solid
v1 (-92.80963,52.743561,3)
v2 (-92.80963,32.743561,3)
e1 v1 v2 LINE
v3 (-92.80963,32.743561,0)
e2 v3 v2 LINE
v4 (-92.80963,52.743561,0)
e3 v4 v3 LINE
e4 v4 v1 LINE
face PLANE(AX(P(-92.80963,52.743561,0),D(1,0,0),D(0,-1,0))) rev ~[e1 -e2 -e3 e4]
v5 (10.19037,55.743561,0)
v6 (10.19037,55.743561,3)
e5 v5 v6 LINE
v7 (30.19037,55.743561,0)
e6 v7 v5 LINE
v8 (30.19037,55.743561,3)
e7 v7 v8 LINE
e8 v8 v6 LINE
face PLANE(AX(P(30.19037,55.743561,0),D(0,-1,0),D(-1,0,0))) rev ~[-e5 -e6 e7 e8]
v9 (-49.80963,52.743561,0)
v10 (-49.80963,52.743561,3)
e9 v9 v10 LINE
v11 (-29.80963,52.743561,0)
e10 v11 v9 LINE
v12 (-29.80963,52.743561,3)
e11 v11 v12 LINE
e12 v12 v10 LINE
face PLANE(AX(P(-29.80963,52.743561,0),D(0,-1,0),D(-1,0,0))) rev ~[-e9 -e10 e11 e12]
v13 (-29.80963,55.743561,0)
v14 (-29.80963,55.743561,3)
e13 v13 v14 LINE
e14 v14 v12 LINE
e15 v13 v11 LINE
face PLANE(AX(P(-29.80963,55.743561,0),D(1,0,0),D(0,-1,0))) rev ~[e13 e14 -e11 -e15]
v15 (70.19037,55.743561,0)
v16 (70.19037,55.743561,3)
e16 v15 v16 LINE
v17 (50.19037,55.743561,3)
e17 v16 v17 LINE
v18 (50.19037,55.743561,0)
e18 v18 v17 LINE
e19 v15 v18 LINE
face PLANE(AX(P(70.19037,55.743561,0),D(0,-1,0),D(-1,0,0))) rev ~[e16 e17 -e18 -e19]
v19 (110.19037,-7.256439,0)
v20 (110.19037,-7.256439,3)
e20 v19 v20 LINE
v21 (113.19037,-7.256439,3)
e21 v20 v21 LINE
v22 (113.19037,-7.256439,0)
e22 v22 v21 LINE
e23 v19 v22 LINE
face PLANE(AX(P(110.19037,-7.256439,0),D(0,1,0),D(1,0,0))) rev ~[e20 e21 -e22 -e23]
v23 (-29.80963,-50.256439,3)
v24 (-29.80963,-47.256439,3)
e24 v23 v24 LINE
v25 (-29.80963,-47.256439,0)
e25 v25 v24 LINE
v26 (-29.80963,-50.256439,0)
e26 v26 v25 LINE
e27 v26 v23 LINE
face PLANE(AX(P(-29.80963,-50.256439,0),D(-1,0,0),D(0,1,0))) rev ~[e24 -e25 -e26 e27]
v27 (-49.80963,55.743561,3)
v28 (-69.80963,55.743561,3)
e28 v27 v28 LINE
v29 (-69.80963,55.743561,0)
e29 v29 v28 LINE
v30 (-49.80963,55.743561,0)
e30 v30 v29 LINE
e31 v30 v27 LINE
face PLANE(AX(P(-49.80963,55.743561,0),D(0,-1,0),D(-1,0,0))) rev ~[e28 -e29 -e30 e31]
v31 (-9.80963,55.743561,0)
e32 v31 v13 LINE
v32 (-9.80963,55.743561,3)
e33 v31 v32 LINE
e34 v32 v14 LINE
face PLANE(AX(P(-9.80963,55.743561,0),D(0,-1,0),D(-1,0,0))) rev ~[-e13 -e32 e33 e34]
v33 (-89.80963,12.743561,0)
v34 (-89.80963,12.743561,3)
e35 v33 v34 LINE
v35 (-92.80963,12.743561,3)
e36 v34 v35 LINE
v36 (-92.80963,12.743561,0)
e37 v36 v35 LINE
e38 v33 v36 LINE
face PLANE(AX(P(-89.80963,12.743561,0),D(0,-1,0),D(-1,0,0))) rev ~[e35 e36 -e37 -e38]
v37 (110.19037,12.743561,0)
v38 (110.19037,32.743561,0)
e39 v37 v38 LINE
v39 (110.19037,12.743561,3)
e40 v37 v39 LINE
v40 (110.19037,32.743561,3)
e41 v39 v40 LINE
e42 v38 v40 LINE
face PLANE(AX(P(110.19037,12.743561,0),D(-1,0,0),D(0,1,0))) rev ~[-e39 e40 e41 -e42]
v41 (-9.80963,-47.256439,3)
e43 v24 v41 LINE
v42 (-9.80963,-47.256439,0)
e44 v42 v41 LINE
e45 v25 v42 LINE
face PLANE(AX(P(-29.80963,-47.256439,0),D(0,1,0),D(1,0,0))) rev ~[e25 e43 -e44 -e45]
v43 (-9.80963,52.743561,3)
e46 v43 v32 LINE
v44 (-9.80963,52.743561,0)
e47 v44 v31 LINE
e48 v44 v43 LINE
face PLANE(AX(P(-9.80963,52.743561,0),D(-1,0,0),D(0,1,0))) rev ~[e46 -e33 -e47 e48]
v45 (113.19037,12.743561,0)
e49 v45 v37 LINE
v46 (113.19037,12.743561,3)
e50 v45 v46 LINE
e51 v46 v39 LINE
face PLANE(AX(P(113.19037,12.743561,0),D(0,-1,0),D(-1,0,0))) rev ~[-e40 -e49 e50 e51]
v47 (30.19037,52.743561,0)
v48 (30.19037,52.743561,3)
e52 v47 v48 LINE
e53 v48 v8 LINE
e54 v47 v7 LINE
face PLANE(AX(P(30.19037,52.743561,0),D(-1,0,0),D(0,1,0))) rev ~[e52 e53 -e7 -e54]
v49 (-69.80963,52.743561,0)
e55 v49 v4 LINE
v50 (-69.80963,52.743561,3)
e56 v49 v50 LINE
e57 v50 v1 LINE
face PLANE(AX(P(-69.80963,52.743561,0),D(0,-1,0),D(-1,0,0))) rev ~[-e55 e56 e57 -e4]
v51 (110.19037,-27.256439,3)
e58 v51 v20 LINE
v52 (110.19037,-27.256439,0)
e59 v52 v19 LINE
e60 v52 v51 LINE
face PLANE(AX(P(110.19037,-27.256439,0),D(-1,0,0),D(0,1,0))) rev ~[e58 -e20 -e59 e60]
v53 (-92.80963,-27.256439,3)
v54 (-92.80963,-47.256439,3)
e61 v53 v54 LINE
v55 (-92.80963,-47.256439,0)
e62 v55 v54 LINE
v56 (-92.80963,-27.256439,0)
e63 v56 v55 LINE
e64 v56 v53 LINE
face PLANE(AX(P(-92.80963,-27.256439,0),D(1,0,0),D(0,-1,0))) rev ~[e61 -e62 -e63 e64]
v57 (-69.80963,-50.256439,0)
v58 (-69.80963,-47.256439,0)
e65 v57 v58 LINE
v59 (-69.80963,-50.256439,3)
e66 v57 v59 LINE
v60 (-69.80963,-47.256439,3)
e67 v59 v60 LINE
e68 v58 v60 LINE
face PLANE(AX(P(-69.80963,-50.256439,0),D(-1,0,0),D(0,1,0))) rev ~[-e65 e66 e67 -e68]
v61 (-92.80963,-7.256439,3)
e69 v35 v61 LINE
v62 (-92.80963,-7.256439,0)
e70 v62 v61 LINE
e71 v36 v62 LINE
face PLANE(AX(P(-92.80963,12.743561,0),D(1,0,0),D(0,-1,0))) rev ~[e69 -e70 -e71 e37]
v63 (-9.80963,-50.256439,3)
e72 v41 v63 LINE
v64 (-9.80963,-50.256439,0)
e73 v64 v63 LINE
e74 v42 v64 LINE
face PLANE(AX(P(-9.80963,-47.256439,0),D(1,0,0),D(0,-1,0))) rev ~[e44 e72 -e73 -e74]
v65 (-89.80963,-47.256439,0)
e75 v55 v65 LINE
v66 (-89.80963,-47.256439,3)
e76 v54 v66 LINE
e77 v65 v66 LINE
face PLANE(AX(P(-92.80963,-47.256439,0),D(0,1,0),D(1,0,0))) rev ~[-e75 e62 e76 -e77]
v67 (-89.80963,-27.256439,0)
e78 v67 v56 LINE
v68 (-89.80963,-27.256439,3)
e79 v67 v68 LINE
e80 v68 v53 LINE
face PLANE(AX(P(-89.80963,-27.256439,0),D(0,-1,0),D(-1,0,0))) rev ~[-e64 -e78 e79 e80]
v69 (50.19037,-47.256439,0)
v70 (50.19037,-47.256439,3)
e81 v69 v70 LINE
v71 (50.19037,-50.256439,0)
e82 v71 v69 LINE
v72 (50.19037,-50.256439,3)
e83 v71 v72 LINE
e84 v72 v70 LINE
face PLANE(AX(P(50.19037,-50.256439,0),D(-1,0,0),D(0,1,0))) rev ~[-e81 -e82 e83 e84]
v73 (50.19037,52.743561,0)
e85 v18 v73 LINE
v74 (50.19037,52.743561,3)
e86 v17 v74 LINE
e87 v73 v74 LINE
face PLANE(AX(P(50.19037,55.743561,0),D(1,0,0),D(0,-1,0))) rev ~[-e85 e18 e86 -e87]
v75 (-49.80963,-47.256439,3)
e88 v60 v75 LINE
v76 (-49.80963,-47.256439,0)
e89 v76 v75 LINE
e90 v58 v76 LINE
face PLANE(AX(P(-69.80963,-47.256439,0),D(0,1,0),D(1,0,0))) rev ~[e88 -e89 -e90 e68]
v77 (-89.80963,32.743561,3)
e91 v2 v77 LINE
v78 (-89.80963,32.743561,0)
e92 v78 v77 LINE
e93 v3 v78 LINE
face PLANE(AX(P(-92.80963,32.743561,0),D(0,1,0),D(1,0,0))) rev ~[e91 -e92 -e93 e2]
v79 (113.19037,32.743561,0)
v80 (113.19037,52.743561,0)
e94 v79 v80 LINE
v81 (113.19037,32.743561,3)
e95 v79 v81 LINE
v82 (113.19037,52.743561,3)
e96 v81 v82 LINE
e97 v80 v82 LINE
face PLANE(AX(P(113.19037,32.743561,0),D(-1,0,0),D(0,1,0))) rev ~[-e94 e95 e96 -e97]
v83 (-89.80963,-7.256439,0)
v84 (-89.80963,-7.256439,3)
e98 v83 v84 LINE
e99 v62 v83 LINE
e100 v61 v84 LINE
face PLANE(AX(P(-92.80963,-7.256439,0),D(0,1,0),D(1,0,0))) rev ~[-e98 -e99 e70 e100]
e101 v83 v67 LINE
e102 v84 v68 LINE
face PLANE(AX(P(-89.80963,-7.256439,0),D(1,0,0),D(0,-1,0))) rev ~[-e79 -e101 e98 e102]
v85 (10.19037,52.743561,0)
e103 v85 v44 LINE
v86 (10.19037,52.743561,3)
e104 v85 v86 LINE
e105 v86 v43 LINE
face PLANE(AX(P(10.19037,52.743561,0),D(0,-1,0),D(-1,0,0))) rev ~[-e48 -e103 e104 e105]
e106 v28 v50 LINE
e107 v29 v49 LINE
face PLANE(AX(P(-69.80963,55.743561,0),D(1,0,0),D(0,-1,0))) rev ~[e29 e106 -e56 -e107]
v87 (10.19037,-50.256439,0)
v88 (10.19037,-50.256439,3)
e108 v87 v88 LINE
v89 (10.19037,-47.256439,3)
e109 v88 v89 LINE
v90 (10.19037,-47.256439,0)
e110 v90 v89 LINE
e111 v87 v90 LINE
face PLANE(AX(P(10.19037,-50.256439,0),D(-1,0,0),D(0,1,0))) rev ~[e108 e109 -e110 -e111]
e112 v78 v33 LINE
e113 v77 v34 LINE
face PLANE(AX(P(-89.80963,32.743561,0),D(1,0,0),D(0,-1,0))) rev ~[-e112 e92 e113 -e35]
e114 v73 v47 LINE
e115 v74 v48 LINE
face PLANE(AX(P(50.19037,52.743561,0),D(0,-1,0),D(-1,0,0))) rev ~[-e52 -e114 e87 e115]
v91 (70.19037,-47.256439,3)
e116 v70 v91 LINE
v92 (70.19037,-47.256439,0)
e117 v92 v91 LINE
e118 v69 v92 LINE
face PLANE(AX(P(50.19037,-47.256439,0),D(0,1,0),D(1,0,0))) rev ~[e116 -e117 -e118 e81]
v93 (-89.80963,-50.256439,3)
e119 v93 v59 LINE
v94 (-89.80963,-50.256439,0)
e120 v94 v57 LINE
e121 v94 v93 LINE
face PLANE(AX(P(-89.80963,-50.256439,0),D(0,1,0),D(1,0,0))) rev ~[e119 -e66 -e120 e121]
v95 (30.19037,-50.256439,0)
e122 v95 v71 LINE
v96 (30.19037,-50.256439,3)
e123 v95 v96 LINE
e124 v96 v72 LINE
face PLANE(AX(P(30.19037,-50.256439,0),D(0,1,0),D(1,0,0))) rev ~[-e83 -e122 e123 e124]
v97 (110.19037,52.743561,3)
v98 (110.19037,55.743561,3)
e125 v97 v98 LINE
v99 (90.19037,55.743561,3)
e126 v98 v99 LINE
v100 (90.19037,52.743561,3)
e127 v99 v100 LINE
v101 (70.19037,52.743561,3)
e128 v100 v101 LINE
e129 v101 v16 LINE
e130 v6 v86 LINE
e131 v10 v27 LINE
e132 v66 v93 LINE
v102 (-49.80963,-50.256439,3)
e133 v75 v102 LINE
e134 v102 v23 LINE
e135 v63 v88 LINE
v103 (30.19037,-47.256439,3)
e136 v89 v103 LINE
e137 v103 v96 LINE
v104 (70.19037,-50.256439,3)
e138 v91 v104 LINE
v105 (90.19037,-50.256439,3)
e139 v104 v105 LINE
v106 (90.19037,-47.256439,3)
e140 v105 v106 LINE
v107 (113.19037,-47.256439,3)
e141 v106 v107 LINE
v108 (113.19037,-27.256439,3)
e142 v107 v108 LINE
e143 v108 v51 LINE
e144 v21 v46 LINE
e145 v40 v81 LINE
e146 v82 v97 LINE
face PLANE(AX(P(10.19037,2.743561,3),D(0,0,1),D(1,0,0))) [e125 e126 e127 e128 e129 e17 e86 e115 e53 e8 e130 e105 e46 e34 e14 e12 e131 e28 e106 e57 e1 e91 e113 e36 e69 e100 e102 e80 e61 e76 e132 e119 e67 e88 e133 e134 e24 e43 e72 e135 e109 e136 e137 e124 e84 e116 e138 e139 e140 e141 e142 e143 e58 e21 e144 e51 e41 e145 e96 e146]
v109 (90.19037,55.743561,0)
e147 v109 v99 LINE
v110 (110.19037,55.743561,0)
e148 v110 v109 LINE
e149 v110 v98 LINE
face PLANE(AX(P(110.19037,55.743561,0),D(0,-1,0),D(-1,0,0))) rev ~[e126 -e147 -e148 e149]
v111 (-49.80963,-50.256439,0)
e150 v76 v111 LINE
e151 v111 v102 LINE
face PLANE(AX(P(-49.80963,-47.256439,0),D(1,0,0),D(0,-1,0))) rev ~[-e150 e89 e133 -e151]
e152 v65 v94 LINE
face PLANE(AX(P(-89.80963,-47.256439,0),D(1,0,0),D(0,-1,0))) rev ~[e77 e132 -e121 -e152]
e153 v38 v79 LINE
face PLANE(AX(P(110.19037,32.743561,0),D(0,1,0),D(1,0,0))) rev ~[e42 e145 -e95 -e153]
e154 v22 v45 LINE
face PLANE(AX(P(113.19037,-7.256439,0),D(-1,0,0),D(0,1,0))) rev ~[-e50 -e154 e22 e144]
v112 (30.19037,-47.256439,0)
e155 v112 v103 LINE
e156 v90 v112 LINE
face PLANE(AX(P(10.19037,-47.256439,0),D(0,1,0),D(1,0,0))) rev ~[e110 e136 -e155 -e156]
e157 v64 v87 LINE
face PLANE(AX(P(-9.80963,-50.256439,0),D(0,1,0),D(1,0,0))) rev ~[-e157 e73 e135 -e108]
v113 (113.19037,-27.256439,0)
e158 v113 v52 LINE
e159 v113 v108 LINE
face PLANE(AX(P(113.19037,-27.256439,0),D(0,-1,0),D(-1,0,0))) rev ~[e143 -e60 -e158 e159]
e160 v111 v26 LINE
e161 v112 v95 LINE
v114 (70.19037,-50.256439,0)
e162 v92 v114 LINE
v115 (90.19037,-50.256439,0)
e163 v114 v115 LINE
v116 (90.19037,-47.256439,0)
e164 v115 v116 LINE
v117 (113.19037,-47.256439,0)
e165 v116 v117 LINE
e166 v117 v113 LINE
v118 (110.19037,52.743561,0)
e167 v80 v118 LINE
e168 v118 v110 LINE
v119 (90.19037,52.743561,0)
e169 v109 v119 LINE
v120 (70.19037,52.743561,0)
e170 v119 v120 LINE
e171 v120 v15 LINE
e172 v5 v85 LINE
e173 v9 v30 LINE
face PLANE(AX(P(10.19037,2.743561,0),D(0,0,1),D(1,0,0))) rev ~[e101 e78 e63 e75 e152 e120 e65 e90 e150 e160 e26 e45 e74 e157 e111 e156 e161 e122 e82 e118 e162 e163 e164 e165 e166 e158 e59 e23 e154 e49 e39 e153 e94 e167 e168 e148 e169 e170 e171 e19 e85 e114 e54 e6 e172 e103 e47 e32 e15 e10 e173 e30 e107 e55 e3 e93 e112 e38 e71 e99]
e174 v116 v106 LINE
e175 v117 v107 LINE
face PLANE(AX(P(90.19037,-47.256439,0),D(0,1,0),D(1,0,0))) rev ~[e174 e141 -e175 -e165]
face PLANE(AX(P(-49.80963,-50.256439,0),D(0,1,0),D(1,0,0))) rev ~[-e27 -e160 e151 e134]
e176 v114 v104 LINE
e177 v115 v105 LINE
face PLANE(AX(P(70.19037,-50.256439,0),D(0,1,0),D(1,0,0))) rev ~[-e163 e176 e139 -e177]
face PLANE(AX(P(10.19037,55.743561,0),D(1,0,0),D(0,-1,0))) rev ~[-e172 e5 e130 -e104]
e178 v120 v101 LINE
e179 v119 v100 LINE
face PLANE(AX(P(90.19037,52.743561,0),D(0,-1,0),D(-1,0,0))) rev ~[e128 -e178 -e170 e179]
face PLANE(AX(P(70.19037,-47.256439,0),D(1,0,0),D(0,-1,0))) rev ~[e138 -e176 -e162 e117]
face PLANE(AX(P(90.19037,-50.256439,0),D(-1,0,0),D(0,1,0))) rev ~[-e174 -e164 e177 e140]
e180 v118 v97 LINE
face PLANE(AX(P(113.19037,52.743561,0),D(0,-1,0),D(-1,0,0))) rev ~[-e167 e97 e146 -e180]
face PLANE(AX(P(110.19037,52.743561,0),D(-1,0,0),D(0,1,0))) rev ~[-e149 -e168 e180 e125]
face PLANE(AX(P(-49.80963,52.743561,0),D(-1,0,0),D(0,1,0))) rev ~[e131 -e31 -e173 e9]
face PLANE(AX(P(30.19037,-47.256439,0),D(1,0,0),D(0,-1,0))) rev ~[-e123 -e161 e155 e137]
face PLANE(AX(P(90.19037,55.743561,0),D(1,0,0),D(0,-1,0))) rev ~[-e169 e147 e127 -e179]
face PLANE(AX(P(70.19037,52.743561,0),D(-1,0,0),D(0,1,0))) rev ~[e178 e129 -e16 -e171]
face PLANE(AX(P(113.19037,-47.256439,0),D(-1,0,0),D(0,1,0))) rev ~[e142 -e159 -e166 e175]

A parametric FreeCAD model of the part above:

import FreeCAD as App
import Part
import Sketcher
from FreeCAD import Vector
Q = App.Units.Quantity


def add_polygon(sketch, points):
    """Adds a closed chain of lines whose ends are joined by coincident constraints."""
    first, n = sketch.GeometryCount, len(points)
    for a, b in zip(points, points[1:] + points[:1]):
        sketch.addGeometry(Part.LineSegment(App.Vector(*a, 0), App.Vector(*b, 0)), False)
    for i in range(n):
        sketch.addConstraint(Sketcher.Constraint("Coincident", first + i, 2, first + (i + 1) % n, 1))

doc = App.newDocument("Part")
body = doc.addObject("PartDesign::Body", "Body")

sketch1 = body.newObject("Sketcher::SketchObject", "Sketch")
sketch1.AttachmentSupport = (doc.getObject("XY_Plane"), [""])
sketch1.MapMode = "FlatFace"
add_polygon(sketch1, [(70.19037, 52.743561), (70.19037, 55.743561), (50.19037, 55.743561), (50.19037, 52.743561), (30.19037, 52.743561), (30.19037, 55.743561), (10.19037, 55.743561), (10.19037, 52.743561), (-9.80963, 52.743561), (-9.80963, 55.743561), (-29.80963, 55.743561), (-29.80963, 52.743561), (-49.80963, 52.743561), (-49.80963, 55.743561), (-69.80963, 55.743561), (-69.80963, 52.743561), (-92.80963, 52.743561), (-92.80963, 32.743561), (-89.80963, 32.743561), (-89.80963, 12.743561), (-92.80963, 12.743561), (-92.80963, -7.256439), (-89.80963, -7.256439), (-89.80963, -27.256439), (-92.80963, -27.256439), (-92.80963, -47.256439), (-89.80963, -47.256439), (-89.80963, -50.256439), (-69.80963, -50.256439), (-69.80963, -47.256439), (-49.80963, -47.256439), (-49.80963, -50.256439), (-29.80963, -50.256439), (-29.80963, -47.256439), (-9.80963, -47.256439), (-9.80963, -50.256439), (10.19037, -50.256439), (10.19037, -47.256439), (30.19037, -47.256439), (30.19037, -50.256439), (50.19037, -50.256439), (50.19037, -47.256439), (70.19037, -47.256439), (70.19037, -50.256439), (90.19037, -50.256439), (90.19037, -47.256439), (113.19037, -47.256439), (113.19037, -27.256439), (110.19037, -27.256439), (110.19037, -7.256439), (113.19037, -7.256439), (113.19037, 12.743561), (110.19037, 12.743561), (110.19037, 32.743561), (113.19037, 32.743561), (113.19037, 52.743561), (110.19037, 52.743561), (110.19037, 55.743561), (90.19037, 55.743561), (90.19037, 52.743561)])
sketch1.addConstraint(Sketcher.Constraint("Vertical", 0))
sketch1.addConstraint(Sketcher.Constraint("Horizontal", 1))
sketch1.addConstraint(Sketcher.Constraint("Vertical", 2))
sketch1.addConstraint(Sketcher.Constraint("Horizontal", 3))
sketch1.addConstraint(Sketcher.Constraint("Vertical", 4))
sketch1.addConstraint(Sketcher.Constraint("Horizontal", 5))
sketch1.addConstraint(Sketcher.Constraint("Vertical", 6))
sketch1.addConstraint(Sketcher.Constraint("Horizontal", 7))
sketch1.addConstraint(Sketcher.Constraint("Vertical", 8))
sketch1.addConstraint(Sketcher.Constraint("Horizontal", 9))
sketch1.addConstraint(Sketcher.Constraint("Vertical", 10))
sketch1.addConstraint(Sketcher.Constraint("Horizontal", 11))
sketch1.addConstraint(Sketcher.Constraint("Vertical", 12))
sketch1.addConstraint(Sketcher.Constraint("Horizontal", 13))
sketch1.addConstraint(Sketcher.Constraint("Vertical", 14))
sketch1.addConstraint(Sketcher.Constraint("Horizontal", 15))
sketch1.addConstraint(Sketcher.Constraint("Vertical", 16))
sketch1.addConstraint(Sketcher.Constraint("Horizontal", 17))
sketch1.addConstraint(Sketcher.Constraint("Vertical", 18))
sketch1.addConstraint(Sketcher.Constraint("Horizontal", 19))
sketch1.addConstraint(Sketcher.Constraint("Vertical", 20))
sketch1.addConstraint(Sketcher.Constraint("Horizontal", 21))
sketch1.addConstraint(Sketcher.Constraint("Vertical", 22))
sketch1.addConstraint(Sketcher.Constraint("Horizontal", 23))
sketch1.addConstraint(Sketcher.Constraint("Vertical", 24))
sketch1.addConstraint(Sketcher.Constraint("Horizontal", 25))
sketch1.addConstraint(Sketcher.Constraint("Vertical", 26))
sketch1.addConstraint(Sketcher.Constraint("Horizontal", 27))
sketch1.addConstraint(Sketcher.Constraint("Vertical", 28))
sketch1.addConstraint(Sketcher.Constraint("Horizontal", 29))
sketch1.addConstraint(Sketcher.Constraint("Vertical", 30))
sketch1.addConstraint(Sketcher.Constraint("Horizontal", 31))
sketch1.addConstraint(Sketcher.Constraint("Vertical", 32))
sketch1.addConstraint(Sketcher.Constraint("Horizontal", 33))
sketch1.addConstraint(Sketcher.Constraint("Vertical", 34))
sketch1.addConstraint(Sketcher.Constraint("Horizontal", 35))
sketch1.addConstraint(Sketcher.Constraint("Vertical", 36))
sketch1.addConstraint(Sketcher.Constraint("Horizontal", 37))
sketch1.addConstraint(Sketcher.Constraint("Vertical", 38))
sketch1.addConstraint(Sketcher.Constraint("Horizontal", 39))
sketch1.addConstraint(Sketcher.Constraint("Vertical", 40))
sketch1.addConstraint(Sketcher.Constraint("Horizontal", 41))
sketch1.addConstraint(Sketcher.Constraint("Vertical", 42))
sketch1.addConstraint(Sketcher.Constraint("Horizontal", 43))
sketch1.addConstraint(Sketcher.Constraint("Vertical", 44))
sketch1.addConstraint(Sketcher.Constraint("Horizontal", 45))
sketch1.addConstraint(Sketcher.Constraint("Vertical", 46))
sketch1.addConstraint(Sketcher.Constraint("Horizontal", 47))
sketch1.addConstraint(Sketcher.Constraint("Vertical", 48))
sketch1.addConstraint(Sketcher.Constraint("Horizontal", 49))
sketch1.addConstraint(Sketcher.Constraint("Vertical", 50))
sketch1.addConstraint(Sketcher.Constraint("Horizontal", 51))
sketch1.addConstraint(Sketcher.Constraint("Vertical", 52))
sketch1.addConstraint(Sketcher.Constraint("Horizontal", 53))
sketch1.addConstraint(Sketcher.Constraint("Vertical", 54))
sketch1.addConstraint(Sketcher.Constraint("Horizontal", 55))
sketch1.addConstraint(Sketcher.Constraint("Vertical", 56))
sketch1.addConstraint(Sketcher.Constraint("Horizontal", 57))
sketch1.addConstraint(Sketcher.Constraint("Vertical", 58))
sketch1.addConstraint(Sketcher.Constraint("Horizontal", 59))
sketch1.addConstraint(Sketcher.Constraint("Horizontal", 1, 2, 4, 2))
sketch1.addConstraint(Sketcher.Constraint("Horizontal", 3, 2, 6, 2))
sketch1.addConstraint(Sketcher.Constraint("Horizontal", 5, 2, 8, 2))
sketch1.addConstraint(Sketcher.Constraint("Horizontal", 7, 2, 10, 2))
sketch1.addConstraint(Sketcher.Constraint("Horizontal", 9, 2, 12, 2))
sketch1.addConstraint(Sketcher.Constraint("Horizontal", 11, 2, 14, 2))
sketch1.addConstraint(Sketcher.Constraint("Horizontal", 25, 2, 28, 2))
sketch1.addConstraint(Sketcher.Constraint("Horizontal", 27, 2, 30, 2))
sketch1.addConstraint(Sketcher.Constraint("Horizontal", 29, 2, 32, 2))
sketch1.addConstraint(Sketcher.Constraint("Horizontal", 31, 2, 34, 2))
sketch1.addConstraint(Sketcher.Constraint("Horizontal", 33, 2, 36, 2))
sketch1.addConstraint(Sketcher.Constraint("Horizontal", 35, 2, 38, 2))
sketch1.addConstraint(Sketcher.Constraint("Horizontal", 37, 2, 40, 2))
sketch1.addConstraint(Sketcher.Constraint("Horizontal", 39, 2, 42, 2))
sketch1.addConstraint(Sketcher.Constraint("Horizontal", 41, 2, 44, 2))
sketch1.addConstraint(Sketcher.Constraint("Horizontal", 23, 2, 46, 2))
sketch1.addConstraint(Sketcher.Constraint("Horizontal", 21, 2, 48, 2))
sketch1.addConstraint(Sketcher.Constraint("Horizontal", 19, 2, 50, 2))
sketch1.addConstraint(Sketcher.Constraint("Horizontal", 17, 2, 52, 2))
sketch1.addConstraint(Sketcher.Constraint("Horizontal", 15, 2, 54, 2))
sketch1.addConstraint(Sketcher.Constraint("Horizontal", 13, 2, 56, 2))
sketch1.addConstraint(Sketcher.Constraint("Horizontal", 55, 2, 58, 2))
sketch1.addConstraint(Sketcher.Constraint("Vertical", 16, 2, 19, 2))
sketch1.addConstraint(Sketcher.Constraint("Vertical", 18, 2, 21, 2))
sketch1.addConstraint(Sketcher.Constraint("Vertical", 20, 2, 23, 2))
sketch1.addConstraint(Sketcher.Constraint("Vertical", 22, 2, 25, 2))
sketch1.addConstraint(Sketcher.Constraint("Vertical", 14, 2, 27, 2))
sketch1.addConstraint(Sketcher.Constraint("Vertical", 12, 2, 29, 2))
sketch1.addConstraint(Sketcher.Constraint("Vertical", 10, 2, 31, 2))
sketch1.addConstraint(Sketcher.Constraint("Vertical", 8, 2, 33, 2))
sketch1.addConstraint(Sketcher.Constraint("Vertical", 6, 2, 35, 2))
sketch1.addConstraint(Sketcher.Constraint("Vertical", 4, 2, 37, 2))
sketch1.addConstraint(Sketcher.Constraint("Vertical", 2, 2, 39, 2))
sketch1.addConstraint(Sketcher.Constraint("Vertical", 0, 2, 41, 2))
sketch1.addConstraint(Sketcher.Constraint("Vertical", 46, 2, 49, 2))
sketch1.addConstraint(Sketcher.Constraint("Vertical", 48, 2, 51, 2))
sketch1.addConstraint(Sketcher.Constraint("Vertical", 50, 2, 53, 2))
sketch1.addConstraint(Sketcher.Constraint("Vertical", 52, 2, 55, 2))
sketch1.addConstraint(Sketcher.Constraint("Vertical", 44, 2, 57, 2))
sketch1.addConstraint(Sketcher.Constraint("Equal", 1, 3))
sketch1.addConstraint(Sketcher.Constraint("Equal", 3, 5))
sketch1.addConstraint(Sketcher.Constraint("Equal", 5, 7))
sketch1.addConstraint(Sketcher.Constraint("Equal", 7, 9))
sketch1.addConstraint(Sketcher.Constraint("Equal", 9, 11))
sketch1.addConstraint(Sketcher.Constraint("Equal", 11, 13))
sketch1.addConstraint(Sketcher.Constraint("Equal", 13, 27))
sketch1.addConstraint(Sketcher.Constraint("Equal", 41, 43))
sketch1.addConstraint(Sketcher.Constraint("Equal", 15, 45))
sketch1.addConstraint(Sketcher.Constraint("Equal", 25, 47))
sketch1.addConstraint(Sketcher.Constraint("Equal", 55, 0))
sketch1.addConstraint(Sketcher.Constraint("Equal", 59, 16))
sketch1.addConstraint(Sketcher.Constraint("Equal", 16, 18))
sketch1.addConstraint(Sketcher.Constraint("Equal", 18, 20))
sketch1.addConstraint(Sketcher.Constraint("Equal", 20, 22))
sketch1.addConstraint(Sketcher.Constraint("Equal", 22, 24))
sketch1.addConstraint(Sketcher.Constraint("Equal", 14, 26))
sketch1.addConstraint(Sketcher.Constraint("DistanceX", 1, 2, 1, 1, Q("20 mm")))
sketch1.addConstraint(Sketcher.Constraint("DistanceX", 15, 2, 15, 1, Q("23 mm")))
sketch1.addConstraint(Sketcher.Constraint("DistanceX", -1, 1, 0, 2, Q("70.19037 mm")))
sketch1.addConstraint(Sketcher.Constraint("DistanceY", -1, 1, 0, 2, Q("55.743561 mm")))
pad1 = body.newObject("PartDesign::Pad", "Pad")
pad1.Profile = sketch1
pad1.Length = 3

doc.recompute()
